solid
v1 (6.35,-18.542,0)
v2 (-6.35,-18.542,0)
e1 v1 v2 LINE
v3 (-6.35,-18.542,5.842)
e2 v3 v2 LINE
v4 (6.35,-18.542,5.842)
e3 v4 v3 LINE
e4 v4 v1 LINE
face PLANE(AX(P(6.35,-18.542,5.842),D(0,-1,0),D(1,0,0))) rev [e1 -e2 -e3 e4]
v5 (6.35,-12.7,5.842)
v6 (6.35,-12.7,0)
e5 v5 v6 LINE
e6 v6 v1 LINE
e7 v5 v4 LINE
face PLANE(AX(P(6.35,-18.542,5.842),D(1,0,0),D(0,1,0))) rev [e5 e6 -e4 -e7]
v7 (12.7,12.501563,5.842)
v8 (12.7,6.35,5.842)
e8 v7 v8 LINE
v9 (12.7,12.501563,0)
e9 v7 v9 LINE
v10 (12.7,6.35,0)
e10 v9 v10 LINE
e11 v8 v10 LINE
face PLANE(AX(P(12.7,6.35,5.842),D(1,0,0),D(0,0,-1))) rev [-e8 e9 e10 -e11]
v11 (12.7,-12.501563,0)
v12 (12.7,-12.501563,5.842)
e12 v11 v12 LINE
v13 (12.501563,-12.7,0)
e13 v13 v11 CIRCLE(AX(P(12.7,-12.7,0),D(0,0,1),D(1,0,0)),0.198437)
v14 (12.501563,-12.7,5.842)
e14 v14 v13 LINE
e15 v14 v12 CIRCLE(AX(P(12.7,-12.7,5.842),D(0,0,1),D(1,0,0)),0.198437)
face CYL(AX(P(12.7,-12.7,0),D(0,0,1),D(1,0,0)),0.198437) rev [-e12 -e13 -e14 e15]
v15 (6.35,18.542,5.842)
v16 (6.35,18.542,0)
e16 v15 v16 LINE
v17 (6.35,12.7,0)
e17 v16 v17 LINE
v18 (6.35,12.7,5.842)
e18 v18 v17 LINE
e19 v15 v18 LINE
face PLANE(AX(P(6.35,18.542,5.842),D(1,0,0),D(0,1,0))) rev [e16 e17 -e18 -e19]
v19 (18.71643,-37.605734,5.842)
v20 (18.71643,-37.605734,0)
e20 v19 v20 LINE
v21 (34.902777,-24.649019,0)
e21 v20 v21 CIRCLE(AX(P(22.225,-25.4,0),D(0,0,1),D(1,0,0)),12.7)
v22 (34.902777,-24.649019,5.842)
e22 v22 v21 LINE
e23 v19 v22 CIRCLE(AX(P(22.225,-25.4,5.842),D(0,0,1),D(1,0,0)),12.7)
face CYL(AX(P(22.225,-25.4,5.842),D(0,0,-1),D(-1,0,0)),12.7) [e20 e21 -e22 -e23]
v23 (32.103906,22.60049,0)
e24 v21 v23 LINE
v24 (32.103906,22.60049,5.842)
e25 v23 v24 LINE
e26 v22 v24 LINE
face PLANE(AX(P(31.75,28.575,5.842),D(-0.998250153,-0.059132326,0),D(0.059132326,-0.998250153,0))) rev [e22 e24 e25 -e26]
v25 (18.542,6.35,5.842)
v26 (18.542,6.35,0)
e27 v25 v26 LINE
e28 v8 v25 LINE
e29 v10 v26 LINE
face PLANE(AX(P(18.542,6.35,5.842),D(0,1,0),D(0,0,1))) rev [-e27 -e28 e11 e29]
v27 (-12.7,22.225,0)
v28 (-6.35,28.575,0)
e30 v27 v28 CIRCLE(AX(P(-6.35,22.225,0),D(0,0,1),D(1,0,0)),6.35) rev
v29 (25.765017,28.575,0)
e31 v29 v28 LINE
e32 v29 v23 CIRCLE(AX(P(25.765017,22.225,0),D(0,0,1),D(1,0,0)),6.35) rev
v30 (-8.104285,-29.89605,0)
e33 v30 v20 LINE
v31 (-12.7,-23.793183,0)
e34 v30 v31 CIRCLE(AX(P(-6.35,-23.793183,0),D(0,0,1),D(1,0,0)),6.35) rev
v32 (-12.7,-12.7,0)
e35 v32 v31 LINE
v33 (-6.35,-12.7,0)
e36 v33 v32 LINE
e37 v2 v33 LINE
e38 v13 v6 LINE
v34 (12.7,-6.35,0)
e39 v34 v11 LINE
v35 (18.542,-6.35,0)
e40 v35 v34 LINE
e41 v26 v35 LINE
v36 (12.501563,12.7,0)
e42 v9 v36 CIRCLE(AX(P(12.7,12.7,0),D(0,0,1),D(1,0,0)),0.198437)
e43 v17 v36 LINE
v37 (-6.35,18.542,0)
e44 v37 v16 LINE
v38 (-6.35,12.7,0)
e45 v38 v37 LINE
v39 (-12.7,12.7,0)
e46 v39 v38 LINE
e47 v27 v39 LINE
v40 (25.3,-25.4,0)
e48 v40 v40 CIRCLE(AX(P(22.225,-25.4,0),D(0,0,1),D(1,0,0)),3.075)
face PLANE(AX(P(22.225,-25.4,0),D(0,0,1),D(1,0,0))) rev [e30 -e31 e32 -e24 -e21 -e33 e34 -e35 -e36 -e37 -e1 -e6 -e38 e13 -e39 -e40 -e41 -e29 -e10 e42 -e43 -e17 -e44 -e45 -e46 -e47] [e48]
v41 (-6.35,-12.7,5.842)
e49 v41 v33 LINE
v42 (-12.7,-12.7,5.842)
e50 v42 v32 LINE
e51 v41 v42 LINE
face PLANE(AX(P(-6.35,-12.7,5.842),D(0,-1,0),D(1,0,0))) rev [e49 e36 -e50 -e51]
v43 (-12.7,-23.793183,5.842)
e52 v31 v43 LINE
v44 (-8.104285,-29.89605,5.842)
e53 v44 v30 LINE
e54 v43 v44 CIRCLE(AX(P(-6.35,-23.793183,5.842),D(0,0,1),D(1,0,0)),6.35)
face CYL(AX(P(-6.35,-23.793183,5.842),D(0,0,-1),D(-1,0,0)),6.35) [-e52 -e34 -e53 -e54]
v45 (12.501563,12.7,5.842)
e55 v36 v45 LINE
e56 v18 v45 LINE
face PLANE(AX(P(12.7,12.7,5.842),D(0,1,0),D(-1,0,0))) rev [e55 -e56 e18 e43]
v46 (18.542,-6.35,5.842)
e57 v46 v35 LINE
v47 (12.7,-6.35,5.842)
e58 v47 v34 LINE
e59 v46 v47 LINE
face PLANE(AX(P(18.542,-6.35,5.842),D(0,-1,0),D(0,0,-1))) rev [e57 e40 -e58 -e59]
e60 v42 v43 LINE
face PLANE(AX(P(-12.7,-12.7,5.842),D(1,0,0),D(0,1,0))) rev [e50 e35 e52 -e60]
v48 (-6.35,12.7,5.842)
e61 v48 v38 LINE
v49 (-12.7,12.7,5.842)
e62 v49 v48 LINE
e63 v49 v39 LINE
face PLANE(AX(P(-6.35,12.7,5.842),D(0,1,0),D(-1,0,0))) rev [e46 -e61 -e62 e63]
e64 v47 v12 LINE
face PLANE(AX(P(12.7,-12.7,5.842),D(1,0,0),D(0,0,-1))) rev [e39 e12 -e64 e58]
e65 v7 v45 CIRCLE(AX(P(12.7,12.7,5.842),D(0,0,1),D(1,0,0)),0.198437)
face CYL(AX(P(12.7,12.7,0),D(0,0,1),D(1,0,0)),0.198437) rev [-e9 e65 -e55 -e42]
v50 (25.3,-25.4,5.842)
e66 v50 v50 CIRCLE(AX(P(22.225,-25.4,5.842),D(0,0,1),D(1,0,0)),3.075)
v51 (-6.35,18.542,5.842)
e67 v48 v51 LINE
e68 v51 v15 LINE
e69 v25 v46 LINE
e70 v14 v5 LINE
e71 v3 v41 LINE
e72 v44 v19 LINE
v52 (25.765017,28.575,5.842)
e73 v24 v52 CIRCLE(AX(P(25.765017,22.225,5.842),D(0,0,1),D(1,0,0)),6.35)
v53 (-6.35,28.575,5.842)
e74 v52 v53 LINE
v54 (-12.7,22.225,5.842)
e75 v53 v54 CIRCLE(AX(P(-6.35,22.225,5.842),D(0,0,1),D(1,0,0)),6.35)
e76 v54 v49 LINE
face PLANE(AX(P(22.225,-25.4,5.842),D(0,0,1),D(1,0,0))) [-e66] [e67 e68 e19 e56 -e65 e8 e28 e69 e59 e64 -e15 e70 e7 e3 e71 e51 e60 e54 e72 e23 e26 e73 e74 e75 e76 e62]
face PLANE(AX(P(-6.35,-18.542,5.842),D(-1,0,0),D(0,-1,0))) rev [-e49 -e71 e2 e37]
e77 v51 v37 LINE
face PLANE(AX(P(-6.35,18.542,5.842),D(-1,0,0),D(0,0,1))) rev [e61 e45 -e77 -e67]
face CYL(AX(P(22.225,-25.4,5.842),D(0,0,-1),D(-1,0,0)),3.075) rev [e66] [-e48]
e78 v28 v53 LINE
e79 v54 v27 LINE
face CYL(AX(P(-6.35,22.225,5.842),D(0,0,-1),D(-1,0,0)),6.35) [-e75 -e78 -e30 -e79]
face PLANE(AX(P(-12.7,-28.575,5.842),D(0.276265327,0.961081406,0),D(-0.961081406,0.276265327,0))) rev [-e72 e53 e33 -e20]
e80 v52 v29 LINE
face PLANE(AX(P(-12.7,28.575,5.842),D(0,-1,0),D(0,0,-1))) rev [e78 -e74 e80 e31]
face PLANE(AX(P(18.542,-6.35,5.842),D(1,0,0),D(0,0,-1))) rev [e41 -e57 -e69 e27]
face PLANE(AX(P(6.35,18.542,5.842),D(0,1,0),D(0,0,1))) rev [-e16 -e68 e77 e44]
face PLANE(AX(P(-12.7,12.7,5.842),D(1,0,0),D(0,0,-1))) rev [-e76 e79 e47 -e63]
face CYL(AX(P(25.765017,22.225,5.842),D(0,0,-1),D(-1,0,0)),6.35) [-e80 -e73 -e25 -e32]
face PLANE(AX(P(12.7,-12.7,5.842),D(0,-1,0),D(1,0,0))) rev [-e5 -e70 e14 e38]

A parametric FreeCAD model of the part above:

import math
import FreeCAD as App
import Part
import Sketcher
Q = App.Units.Quantity


def edges_at(feature, points):
    """Names of the edges that pass closest to the given points."""
    edges = feature.Shape.Edges
    near = lambda p: min(range(len(edges)), key=lambda i: edges[i].distToShape(Part.Vertex(*p))[0])
    return sorted({f"Edge{near(p) + 1}" for p in points})

doc = App.newDocument("Part")
body = doc.addObject("PartDesign::Body", "Body")

sketch1 = doc.addObject("Sketcher::SketchObject", "Sketch")
body.addObject(sketch1)
sketch1.AttachmentSupport = (doc.XY_Plane, [""])
sketch1.MapMode = "FlatFace"
sketch1.addGeometry([
    Part.LineSegment(App.Vector(12.7, -12.7, 0), App.Vector(6.3, -12.7, 0)),
    Part.LineSegment(App.Vector(6.3, -12.7, 0), App.Vector(6.3, -18.5, 0)),
    Part.LineSegment(App.Vector(6.3, -18.5, 0), App.Vector(-6.3, -18.5, 0)),
    Part.LineSegment(App.Vector(-6.3, -18.5, 0), App.Vector(-6.3, -12.7, 0)),
    Part.LineSegment(App.Vector(-6.3, -12.7, 0), App.Vector(-12.7, -12.7, 0)),
    Part.LineSegment(App.Vector(-12.7, -12.7, 0), App.Vector(-12.7, -28.6, 0)),
    Part.LineSegment(App.Vector(-12.7, -28.6, 0), App.Vector(18.7, -37.6, 0)),
    Part.ArcOfCircle(Part.Circle(App.Vector(22.2, -25.4, 0), App.Vector(0, 0, 1), 12.7), math.radians(-106), math.radians(3)),
    Part.LineSegment(App.Vector(34.9, -24.6, 0), App.Vector(31.8, 28.6, 0)),
    Part.LineSegment(App.Vector(31.8, 28.6, 0), App.Vector(-12.7, 28.6, 0)),
    Part.LineSegment(App.Vector(-12.7, 28.6, 0), App.Vector(-12.7, 12.7, 0)),
    Part.LineSegment(App.Vector(-12.7, 12.7, 0), App.Vector(-6.3, 12.7, 0)),
    Part.LineSegment(App.Vector(-6.3, 12.7, 0), App.Vector(-6.3, 18.5, 0)),
    Part.LineSegment(App.Vector(-6.3, 18.5, 0), App.Vector(6.3, 18.5, 0)),
    Part.LineSegment(App.Vector(6.3, 18.5, 0), App.Vector(6.3, 12.7, 0)),
    Part.LineSegment(App.Vector(6.3, 12.7, 0), App.Vector(12.7, 12.7, 0)),
    Part.LineSegment(App.Vector(12.7, 12.7, 0), App.Vector(12.7, 6.3, 0)),
    Part.LineSegment(App.Vector(12.7, 6.3, 0), App.Vector(18.5, 6.3, 0)),
    Part.LineSegment(App.Vector(18.5, 6.3, 0), App.Vector(18.5, -6.3, 0)),
    Part.LineSegment(App.Vector(18.5, -6.3, 0), App.Vector(12.7, -6.3, 0)),
    Part.LineSegment(App.Vector(12.7, -6.3, 0), App.Vector(12.7, -12.7, 0)),
    Part.Circle(App.Vector(22.2, -25.4, 0), App.Vector(0, 0, 1), 3.1),
], False)
sketch1.addConstraint([
    Sketcher.Constraint("Coincident", 0, 2, 1, 1),
    Sketcher.Constraint("Coincident", 1, 2, 2, 1),
    Sketcher.Constraint("Coincident", 2, 2, 3, 1),
    Sketcher.Constraint("Coincident", 3, 2, 4, 1),
    Sketcher.Constraint("Coincident", 4, 2, 5, 1),
    Sketcher.Constraint("Coincident", 5, 2, 6, 1),
    Sketcher.Constraint("Tangent", 6, 2, 7, 1),
    Sketcher.Constraint("Tangent", 7, 2, 8, 1),
    Sketcher.Constraint("Coincident", 8, 2, 9, 1),
    Sketcher.Constraint("Coincident", 9, 2, 10, 1),
    Sketcher.Constraint("Coincident", 10, 2, 11, 1),
    Sketcher.Constraint("Coincident", 11, 2, 12, 1),
    Sketcher.Constraint("Coincident", 12, 2, 13, 1),
    Sketcher.Constraint("Coincident", 13, 2, 14, 1),
    Sketcher.Constraint("Coincident", 14, 2, 15, 1),
    Sketcher.Constraint("Coincident", 15, 2, 16, 1),
    Sketcher.Constraint("Coincident", 16, 2, 17, 1),
    Sketcher.Constraint("Coincident", 17, 2, 18, 1),
    Sketcher.Constraint("Coincident", 18, 2, 19, 1),
    Sketcher.Constraint("Coincident", 19, 2, 20, 1),
    Sketcher.Constraint("Coincident", 20, 2, 0, 1),
    Sketcher.Constraint("Horizontal", 0),
    Sketcher.Constraint("Vertical", 1),
    Sketcher.Constraint("Horizontal", 2),
    Sketcher.Constraint("Vertical", 3),
    Sketcher.Constraint("Horizontal", 4),
    Sketcher.Constraint("Vertical", 5),
    Sketcher.Constraint("Horizontal", 9),
    Sketcher.Constraint("Vertical", 10),
    Sketcher.Constraint("Horizontal", 11),
    Sketcher.Constraint("Vertical", 12),
    Sketcher.Constraint("Horizontal", 13),
    Sketcher.Constraint("Vertical", 14),
    Sketcher.Constraint("Horizontal", 15),
    Sketcher.Constraint("Vertical", 16),
    Sketcher.Constraint("Horizontal", 17),
    Sketcher.Constraint("Vertical", 18),
    Sketcher.Constraint("Horizontal", 19),
    Sketcher.Constraint("Vertical", 20),
    Sketcher.Constraint("Coincident", 21, 3, 7, 3),
    Sketcher.Constraint("Symmetric", 0, 2, 11, 2, -1, 1),
    Sketcher.Constraint("Symmetric", 2, 2, 13, 2, -1, 1),
    Sketcher.Constraint("Symmetric", 4, 2, 15, 2, -1, 1),
    Sketcher.Constraint("Symmetric", 0, 2, 3, 2, -2),
    Sketcher.Constraint("Symmetric", 5, 2, 9, 2, -1),
    Sketcher.Constraint("Symmetric", 16, 2, 19, 2, -1),
    Sketcher.Constraint("Equal", 19, 1),
    Sketcher.Constraint("Equal", 15, 16),
    Sketcher.Constraint("Equal", 13, 18),
    Sketcher.Constraint("Radius", 7, Q("0.5 in")),
    Sketcher.Constraint("DistanceX", 2, 2, 2, 1, Q("0.5 in")),
    Sketcher.Constraint("DistanceY", 7, 3, -1, 1, Q("1 in")),
    Sketcher.Constraint("DistanceX", 0, 2, 8, 2, Q("1 in")),
    Sketcher.Constraint("DistanceY", 4, 2, 10, 2, Q("1 in")),
    Sketcher.Constraint("DistanceX", 17, 1, 17, 2, Q("0.23 in")),
    Sketcher.Constraint("Diameter", 21, 6.15),
    Sketcher.Constraint("DistanceY", 5, 2, 5, 1, Q("0.625 in")),
    Sketcher.Constraint("Angle", 8, Q("93.39001 deg")),
])
pad1 = doc.addObject("PartDesign::Pad", "Pad")
body.addObject(pad1)
pad1.Profile = sketch1
pad1.Length = Q("0.23 in")
doc.recompute()

fillet = doc.addObject("PartDesign::Fillet", "Fillet")
body.addObject(fillet)
fillet.Base = (pad1, edges_at(pad1, [(-12.7, 28.575, 2.921), (31.75, 28.575, 2.921), (-12.7, -28.575, 2.921)]))
fillet.Radius = Q("0.25 in")

sketch2 = doc.addObject("Sketcher::SketchObject", "Sketch001")
body.addObject(sketch2)
sketch2.AttachmentSupport = (doc.XY_Plane, [""])
sketch2.MapMode = "FlatFace"
sketch2.AttachmentOffset = App.Placement(App.Vector(0, 0, 0.23 * 25.4), App.Rotation())
sketch2.addGeometry([
    Part.Circle(App.Vector(12.7, 12.7, 0), App.Vector(0, 0, 1), 0.2),
    Part.Circle(App.Vector(12.7, -12.7, 0), App.Vector(0, 0, 1), 0.2),
], False)
sketch2.addConstraint([
    Sketcher.Constraint("Equal", 0, 1),
    Sketcher.Constraint("Symmetric", 0, 3, 1, 3, -1),
    Sketcher.Constraint("Diameter", 0, Q("0.015625 in")),
    Sketcher.Constraint("DistanceY", 1, 3, 0, 3, Q("1 in")),
    Sketcher.Constraint("DistanceX", -1, 1, 0, 3, Q("0.5 in")),
])
pocket1 = doc.addObject("PartDesign::Pocket", "Pocket")
body.addObject(pocket1)
pocket1.Profile = sketch2
pocket1.Type = "ThroughAll"

doc.recompute()
